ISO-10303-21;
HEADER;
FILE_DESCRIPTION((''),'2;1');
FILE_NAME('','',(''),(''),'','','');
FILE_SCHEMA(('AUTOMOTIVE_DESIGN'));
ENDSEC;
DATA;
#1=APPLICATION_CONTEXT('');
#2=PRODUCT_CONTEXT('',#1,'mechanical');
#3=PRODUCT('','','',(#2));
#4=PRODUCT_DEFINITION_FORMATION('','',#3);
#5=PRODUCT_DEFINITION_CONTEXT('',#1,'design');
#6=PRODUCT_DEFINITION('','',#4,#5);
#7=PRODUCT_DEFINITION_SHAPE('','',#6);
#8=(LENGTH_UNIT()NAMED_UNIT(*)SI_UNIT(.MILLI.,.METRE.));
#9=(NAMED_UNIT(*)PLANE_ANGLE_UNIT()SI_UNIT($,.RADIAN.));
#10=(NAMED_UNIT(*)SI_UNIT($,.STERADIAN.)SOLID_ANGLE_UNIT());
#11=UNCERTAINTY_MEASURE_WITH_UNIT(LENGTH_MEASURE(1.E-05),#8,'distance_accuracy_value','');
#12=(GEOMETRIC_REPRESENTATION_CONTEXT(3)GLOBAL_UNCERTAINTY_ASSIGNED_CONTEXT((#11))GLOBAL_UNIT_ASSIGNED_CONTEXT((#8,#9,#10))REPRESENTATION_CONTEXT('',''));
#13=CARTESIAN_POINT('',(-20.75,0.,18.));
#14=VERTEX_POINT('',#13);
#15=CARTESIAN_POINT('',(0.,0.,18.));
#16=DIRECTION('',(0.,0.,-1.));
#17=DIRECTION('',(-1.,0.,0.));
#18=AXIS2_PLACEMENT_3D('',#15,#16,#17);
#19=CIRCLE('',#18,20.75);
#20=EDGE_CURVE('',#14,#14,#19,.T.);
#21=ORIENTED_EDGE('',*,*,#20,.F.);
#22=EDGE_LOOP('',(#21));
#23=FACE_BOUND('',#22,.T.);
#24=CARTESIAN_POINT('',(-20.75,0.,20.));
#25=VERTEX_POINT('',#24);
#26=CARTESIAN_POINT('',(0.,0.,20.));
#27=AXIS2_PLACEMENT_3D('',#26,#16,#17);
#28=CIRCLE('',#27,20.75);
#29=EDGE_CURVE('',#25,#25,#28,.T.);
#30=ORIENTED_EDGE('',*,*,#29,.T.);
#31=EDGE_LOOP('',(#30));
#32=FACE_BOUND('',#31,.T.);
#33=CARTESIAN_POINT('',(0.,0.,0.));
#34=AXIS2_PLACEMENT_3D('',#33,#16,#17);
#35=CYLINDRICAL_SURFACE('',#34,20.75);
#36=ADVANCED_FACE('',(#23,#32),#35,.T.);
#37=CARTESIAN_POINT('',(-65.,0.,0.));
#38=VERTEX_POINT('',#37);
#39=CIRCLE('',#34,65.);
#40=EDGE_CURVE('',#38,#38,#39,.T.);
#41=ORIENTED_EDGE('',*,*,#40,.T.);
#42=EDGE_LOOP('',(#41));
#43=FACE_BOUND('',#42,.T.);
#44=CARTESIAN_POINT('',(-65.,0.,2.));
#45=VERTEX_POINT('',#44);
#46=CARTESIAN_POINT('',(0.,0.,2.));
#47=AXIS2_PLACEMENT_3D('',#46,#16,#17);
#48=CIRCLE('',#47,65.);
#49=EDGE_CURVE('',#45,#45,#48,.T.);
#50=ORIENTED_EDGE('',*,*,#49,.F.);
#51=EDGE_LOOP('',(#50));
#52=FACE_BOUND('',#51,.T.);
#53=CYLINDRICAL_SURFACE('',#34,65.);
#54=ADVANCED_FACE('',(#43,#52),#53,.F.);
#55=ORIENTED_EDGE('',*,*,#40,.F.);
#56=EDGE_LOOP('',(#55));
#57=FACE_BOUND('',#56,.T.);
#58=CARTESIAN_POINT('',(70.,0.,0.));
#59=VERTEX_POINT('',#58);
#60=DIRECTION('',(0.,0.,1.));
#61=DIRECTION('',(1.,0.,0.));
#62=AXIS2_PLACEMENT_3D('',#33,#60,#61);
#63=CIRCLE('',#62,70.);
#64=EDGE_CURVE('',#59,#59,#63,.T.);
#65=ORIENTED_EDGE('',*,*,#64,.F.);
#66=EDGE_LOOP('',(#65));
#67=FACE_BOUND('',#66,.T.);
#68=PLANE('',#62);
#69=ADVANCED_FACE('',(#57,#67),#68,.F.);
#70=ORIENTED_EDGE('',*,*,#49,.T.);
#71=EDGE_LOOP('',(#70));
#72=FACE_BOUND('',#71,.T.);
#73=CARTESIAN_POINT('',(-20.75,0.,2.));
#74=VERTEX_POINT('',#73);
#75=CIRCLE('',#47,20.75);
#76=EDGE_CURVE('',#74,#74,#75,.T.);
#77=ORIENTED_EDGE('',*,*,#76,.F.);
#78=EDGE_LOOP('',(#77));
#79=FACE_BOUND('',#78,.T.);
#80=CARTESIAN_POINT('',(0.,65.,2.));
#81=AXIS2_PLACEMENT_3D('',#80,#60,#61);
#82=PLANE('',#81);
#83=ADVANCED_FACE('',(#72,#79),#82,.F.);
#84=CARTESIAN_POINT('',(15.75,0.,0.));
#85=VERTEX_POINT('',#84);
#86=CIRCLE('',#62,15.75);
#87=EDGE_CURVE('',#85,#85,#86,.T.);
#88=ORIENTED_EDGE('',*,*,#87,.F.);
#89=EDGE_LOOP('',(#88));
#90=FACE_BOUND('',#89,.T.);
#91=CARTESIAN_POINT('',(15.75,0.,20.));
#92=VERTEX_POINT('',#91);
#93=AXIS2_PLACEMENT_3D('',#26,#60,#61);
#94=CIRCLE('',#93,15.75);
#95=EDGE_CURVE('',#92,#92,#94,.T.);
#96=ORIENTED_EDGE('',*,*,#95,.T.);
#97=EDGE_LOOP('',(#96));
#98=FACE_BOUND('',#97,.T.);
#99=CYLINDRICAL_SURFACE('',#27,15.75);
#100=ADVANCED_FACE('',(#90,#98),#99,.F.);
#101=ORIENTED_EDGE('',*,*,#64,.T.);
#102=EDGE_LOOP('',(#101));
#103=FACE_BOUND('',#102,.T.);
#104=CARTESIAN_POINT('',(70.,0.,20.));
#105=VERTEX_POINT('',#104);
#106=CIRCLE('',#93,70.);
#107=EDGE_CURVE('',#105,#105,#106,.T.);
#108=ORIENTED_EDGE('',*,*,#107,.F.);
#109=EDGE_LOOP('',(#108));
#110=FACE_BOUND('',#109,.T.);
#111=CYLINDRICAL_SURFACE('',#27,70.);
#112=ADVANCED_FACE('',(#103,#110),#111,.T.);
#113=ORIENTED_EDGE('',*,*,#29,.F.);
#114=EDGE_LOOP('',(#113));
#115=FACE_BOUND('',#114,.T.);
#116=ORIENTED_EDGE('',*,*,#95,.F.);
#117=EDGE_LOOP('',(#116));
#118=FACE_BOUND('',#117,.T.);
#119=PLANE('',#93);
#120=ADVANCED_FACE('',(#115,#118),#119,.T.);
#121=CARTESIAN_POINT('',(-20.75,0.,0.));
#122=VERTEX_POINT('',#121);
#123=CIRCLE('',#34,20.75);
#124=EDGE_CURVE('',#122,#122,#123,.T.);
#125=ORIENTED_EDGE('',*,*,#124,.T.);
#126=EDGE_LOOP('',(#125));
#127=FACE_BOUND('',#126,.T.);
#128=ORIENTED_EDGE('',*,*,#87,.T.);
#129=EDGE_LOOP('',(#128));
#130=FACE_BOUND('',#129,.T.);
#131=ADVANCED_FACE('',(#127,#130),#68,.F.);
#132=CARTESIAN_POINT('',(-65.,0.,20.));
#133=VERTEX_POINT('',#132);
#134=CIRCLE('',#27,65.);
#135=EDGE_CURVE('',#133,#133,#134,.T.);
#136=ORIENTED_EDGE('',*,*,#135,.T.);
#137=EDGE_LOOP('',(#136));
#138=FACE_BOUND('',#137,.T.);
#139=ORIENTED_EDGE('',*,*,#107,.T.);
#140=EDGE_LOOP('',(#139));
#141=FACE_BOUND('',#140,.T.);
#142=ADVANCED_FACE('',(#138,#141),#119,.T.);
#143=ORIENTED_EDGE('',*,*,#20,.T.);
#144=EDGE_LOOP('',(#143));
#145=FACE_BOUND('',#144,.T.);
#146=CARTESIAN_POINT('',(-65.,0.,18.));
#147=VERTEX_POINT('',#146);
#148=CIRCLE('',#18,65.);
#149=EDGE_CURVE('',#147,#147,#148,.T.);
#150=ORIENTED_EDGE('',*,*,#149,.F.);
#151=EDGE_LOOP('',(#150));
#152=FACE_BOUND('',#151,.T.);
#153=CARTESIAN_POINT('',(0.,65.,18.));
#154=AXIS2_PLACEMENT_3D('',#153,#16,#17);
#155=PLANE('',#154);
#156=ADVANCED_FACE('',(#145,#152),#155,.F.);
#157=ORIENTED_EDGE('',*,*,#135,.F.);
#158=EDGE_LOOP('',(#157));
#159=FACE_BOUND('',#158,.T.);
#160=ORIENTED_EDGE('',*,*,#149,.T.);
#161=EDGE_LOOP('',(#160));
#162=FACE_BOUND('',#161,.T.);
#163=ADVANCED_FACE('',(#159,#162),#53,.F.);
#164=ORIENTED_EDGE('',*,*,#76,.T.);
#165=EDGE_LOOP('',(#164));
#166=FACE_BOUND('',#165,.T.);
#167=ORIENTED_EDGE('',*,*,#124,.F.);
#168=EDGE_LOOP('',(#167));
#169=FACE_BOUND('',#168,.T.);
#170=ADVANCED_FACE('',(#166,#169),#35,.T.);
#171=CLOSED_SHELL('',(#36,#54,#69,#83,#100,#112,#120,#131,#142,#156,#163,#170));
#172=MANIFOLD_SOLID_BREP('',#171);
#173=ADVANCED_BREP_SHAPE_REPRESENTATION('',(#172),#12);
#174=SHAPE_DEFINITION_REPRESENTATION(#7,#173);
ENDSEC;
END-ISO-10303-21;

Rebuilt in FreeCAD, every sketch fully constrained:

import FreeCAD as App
import Part
import Sketcher
from FreeCAD import Vector
Q = App.Units.Quantity

doc = App.newDocument("Part")
body = doc.addObject("PartDesign::Body", "Body")

# Sketch on XY plane
sketch1 = body.newObject("Sketcher::SketchObject", "Sketch")
sketch1.AttachmentSupport = (doc.getObject("XY_Plane"), [""])
sketch1.MapMode = "FlatFace"
sketch1.addGeometry(Part.Circle(Vector(0, 0, 0), Vector(0, 0, 1), 70), False)
sketch1.addGeometry(Part.Circle(Vector(0, 0, 0), Vector(0, 0, 1), 15.75), False)
sketch1.addConstraint(Sketcher.Constraint("Coincident", 0, 3, -1, 1))
sketch1.addConstraint(Sketcher.Constraint("Coincident", 1, 3, -1, 1))
sketch1.addConstraint(Sketcher.Constraint("Diameter", 0, Q("140 mm")))
sketch1.addConstraint(Sketcher.Constraint("Diameter", 1, Q("31.5 mm")))
pad1 = body.newObject("PartDesign::Pad", "Pad")
pad1.Profile = sketch1
pad1.Length = 20

# Sketch on YZ plane
sketch2 = body.newObject("Sketcher::SketchObject", "Sketch001")
sketch2.AttachmentSupport = (doc.getObject("YZ_Plane"), [""])
sketch2.MapMode = "FlatFace"
sketch2.addGeometry(Part.LineSegment(Vector(65, 20, 0), Vector(20.75, 20, 0)), False)
sketch2.addGeometry(Part.LineSegment(Vector(20.75, 20, 0), Vector(20.75, 18, 0)), False)
sketch2.addGeometry(Part.LineSegment(Vector(20.75, 18, 0), Vector(65, 18, 0)), False)
sketch2.addGeometry(Part.LineSegment(Vector(65, 18, 0), Vector(65, 20, 0)), False)
sketch2.addGeometry(Part.LineSegment(Vector(65, 2, 0), Vector(20.75, 2, 0)), False)
sketch2.addGeometry(Part.LineSegment(Vector(20.75, 2, 0), Vector(20.75, 0, 0)), False)
sketch2.addGeometry(Part.LineSegment(Vector(20.75, 0, 0), Vector(65, 0, 0)), False)
sketch2.addGeometry(Part.LineSegment(Vector(65, 0, 0), Vector(65, 2, 0)), False)
sketch2.addConstraint(Sketcher.Constraint("Coincident", 0, 2, 1, 1))
sketch2.addConstraint(Sketcher.Constraint("Coincident", 1, 2, 2, 1))
sketch2.addConstraint(Sketcher.Constraint("Coincident", 2, 2, 3, 1))
sketch2.addConstraint(Sketcher.Constraint("Coincident", 3, 2, 0, 1))
sketch2.addConstraint(Sketcher.Constraint("Coincident", 4, 2, 5, 1))
sketch2.addConstraint(Sketcher.Constraint("Coincident", 5, 2, 6, 1))
sketch2.addConstraint(Sketcher.Constraint("Coincident", 6, 2, 7, 1))
sketch2.addConstraint(Sketcher.Constraint("Coincident", 7, 2, 4, 1))
sketch2.addConstraint(Sketcher.Constraint("Horizontal", 0))
sketch2.addConstraint(Sketcher.Constraint("Vertical", 1))
sketch2.addConstraint(Sketcher.Constraint("Horizontal", 2))
sketch2.addConstraint(Sketcher.Constraint("Vertical", 3))
sketch2.addConstraint(Sketcher.Constraint("Horizontal", 4))
sketch2.addConstraint(Sketcher.Constraint("Vertical", 5))
sketch2.addConstraint(Sketcher.Constraint("Horizontal", 6))
sketch2.addConstraint(Sketcher.Constraint("Vertical", 7))
sketch2.addConstraint(Sketcher.Constraint("PointOnObject", 5, 2, -1))
sketch2.addConstraint(Sketcher.Constraint("Vertical", 1, 2, 4, 2))
sketch2.addConstraint(Sketcher.Constraint("Vertical", 3, 2, 6, 2))
sketch2.addConstraint(Sketcher.Constraint("Equal", 3, 5))
sketch2.addConstraint(Sketcher.Constraint("DistanceY", 1, 2, 1, 1, Q("2 mm")))
sketch2.addConstraint(Sketcher.Constraint("DistanceY", -1, 1, 0, 2, Q("20 mm")))
sketch2.addConstraint(Sketcher.Constraint("DistanceX", -1, 1, 2, 2, Q("65 mm")))
sketch2.addConstraint(Sketcher.Constraint("DistanceX", 0, 2, 0, 1, Q("44.25 mm")))
groove = body.newObject("PartDesign::Groove", "Groove")
groove.Profile = sketch2
groove.ReferenceAxis = (sketch2, ["V_Axis"])
groove.Angle = 360

doc.recompute()
